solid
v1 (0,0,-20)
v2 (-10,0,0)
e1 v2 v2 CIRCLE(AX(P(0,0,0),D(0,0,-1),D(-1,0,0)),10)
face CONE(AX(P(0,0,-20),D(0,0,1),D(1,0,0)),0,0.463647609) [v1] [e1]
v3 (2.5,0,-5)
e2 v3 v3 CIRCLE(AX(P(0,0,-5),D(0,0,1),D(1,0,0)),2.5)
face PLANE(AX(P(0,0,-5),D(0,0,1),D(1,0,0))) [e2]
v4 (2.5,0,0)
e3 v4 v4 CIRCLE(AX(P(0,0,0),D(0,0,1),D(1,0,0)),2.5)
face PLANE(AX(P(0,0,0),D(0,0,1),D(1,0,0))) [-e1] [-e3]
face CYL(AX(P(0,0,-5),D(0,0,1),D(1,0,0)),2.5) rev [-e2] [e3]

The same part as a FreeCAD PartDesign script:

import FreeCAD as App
import Part
import Sketcher

V = App.Vector


def add_polygon(sketch, points):
    """Adds a closed chain of lines whose ends are joined by coincident constraints."""
    first, n = sketch.GeometryCount, len(points)
    for a, b in zip(points, points[1:] + points[:1]):
        sketch.addGeometry(Part.LineSegment(App.Vector(*a, 0), App.Vector(*b, 0)), False)
    for i in range(n):
        sketch.addConstraint(Sketcher.Constraint("Coincident", first + i, 2, first + (i + 1) % n, 1))

doc = App.newDocument("Part")
params = doc.addObject("Spreadsheet::Sheet", "Params")
for row, (alias, value) in enumerate([
    ("sketch1_width", "10 mm"),
    ("sketch1_height", "20 mm"),
    ("revolution_angle", "360 deg"),
    ("sketch2_diameter", "5 mm"),
    ("pocket1_length", "5 mm"),
], start=1):
    params.set(f"A{row}", alias)
    params.set(f"B{row}", "=" + value)
    params.setAlias(f"B{row}", alias)

body = doc.addObject("PartDesign::Body", "Body")

sketch1 = body.newObject("Sketcher::SketchObject", "Sketch")
sketch1.AttachmentSupport = (doc.getObject("XZ_Plane"), [""])
sketch1.MapMode = "FlatFace"
add_polygon(sketch1, [(-10, 0), (0, 0), (0, -20)])
sketch1.addConstraint([
    Sketcher.Constraint("Horizontal", 0),
    Sketcher.Constraint("Vertical", 1),
    Sketcher.Constraint("Coincident", 0, 2, -1, 1),
    Sketcher.Constraint("DistanceX", 0, 1, 0, 2, 10.0),
    Sketcher.Constraint("DistanceY", 1, 2, 1, 1, 20.0),
])
sketch1.setExpression("Constraints[6]", "Params.sketch1_width")
sketch1.setExpression("Constraints[7]", "Params.sketch1_height")
revolution = body.newObject("PartDesign::Revolution", "Revolution")
revolution.Profile = sketch1
revolution.ReferenceAxis = (sketch1, ["V_Axis"])
revolution.setExpression("Angle", "Params.revolution_angle")

sketch2 = body.newObject("Sketcher::SketchObject", "Sketch001")
sketch2.AttachmentSupport = (doc.getObject("XY_Plane"), [""])
sketch2.MapMode = "FlatFace"
sketch2.addGeometry(Part.Circle(V(0, 0, 0), V(0, 0, 1), 2.5), False)
sketch2.addConstraint([
    Sketcher.Constraint("Coincident", 0, 3, -1, 1),
    Sketcher.Constraint("Diameter", 0, 5.0),
])
sketch2.setExpression("Constraints[1]", "Params.sketch2_diameter")
pocket1 = body.newObject("PartDesign::Pocket", "Pocket")
pocket1.Profile = sketch2
pocket1.setExpression("Length", "Params.pocket1_length")

doc.recompute()
